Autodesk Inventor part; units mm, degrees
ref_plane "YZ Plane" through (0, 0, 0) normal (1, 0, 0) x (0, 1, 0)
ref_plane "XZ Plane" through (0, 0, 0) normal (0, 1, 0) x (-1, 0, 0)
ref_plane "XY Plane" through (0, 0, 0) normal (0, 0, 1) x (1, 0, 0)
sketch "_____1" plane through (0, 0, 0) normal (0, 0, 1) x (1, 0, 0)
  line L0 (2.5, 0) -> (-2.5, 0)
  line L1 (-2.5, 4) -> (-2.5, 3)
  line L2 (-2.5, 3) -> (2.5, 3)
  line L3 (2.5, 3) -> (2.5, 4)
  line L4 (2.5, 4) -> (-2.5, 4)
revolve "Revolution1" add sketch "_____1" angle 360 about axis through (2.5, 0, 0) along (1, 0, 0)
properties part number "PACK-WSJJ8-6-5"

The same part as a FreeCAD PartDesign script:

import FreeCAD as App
import Part
import Sketcher


def add_polygon(sketch, points):
    """Adds a closed chain of lines whose ends are joined by coincident constraints."""
    first, n = sketch.GeometryCount, len(points)
    for a, b in zip(points, points[1:] + points[:1]):
        sketch.addGeometry(Part.LineSegment(App.Vector(*a, 0), App.Vector(*b, 0)), False)
    for i in range(n):
        sketch.addConstraint(Sketcher.Constraint("Coincident", first + i, 2, first + (i + 1) % n, 1))

doc = App.newDocument("Part")
params = doc.addObject("Spreadsheet::Sheet", "Params")
for row, (alias, value) in enumerate([
    ("sketch1_width", "5 mm"),
    ("sketch1_height", "1 mm"),
    ("revolution_angle", "360 deg"),
], start=1):
    params.set(f"A{row}", alias)
    params.set(f"B{row}", "=" + value)
    params.setAlias(f"B{row}", alias)

body = doc.addObject("PartDesign::Body", "Body")

sketch1 = doc.addObject("Sketcher::SketchObject", "Sketch")
body.addObject(sketch1)
sketch1.AttachmentSupport = (doc.XY_Plane, [""])
sketch1.MapMode = "FlatFace"
add_polygon(sketch1, [(2.5, 4), (-2.5, 4), (-2.5, 3), (2.5, 3)])
sketch1.addConstraint([
    Sketcher.Constraint("Horizontal", 0),
    Sketcher.Constraint("Vertical", 1),
    Sketcher.Constraint("Horizontal", 2),
    Sketcher.Constraint("Vertical", 3),
    Sketcher.Constraint("DistanceX", 0, 2, 0, 1, 5.0),
    Sketcher.Constraint("DistanceY", 1, 2, 1, 1, 1.0),
    Sketcher.Constraint("DistanceY", -1, 1, 0, 2, 4.0),
    Sketcher.Constraint("DistanceX", 0, 2, -1, 1, 2.5),
])
sketch1.setExpression("Constraints[8]", "Params.sketch1_width")
sketch1.setExpression("Constraints[9]", "Params.sketch1_height")
revolution = doc.addObject("PartDesign::Revolution", "Revolution")
body.addObject(revolution)
revolution.Profile = sketch1
revolution.ReferenceAxis = (sketch1, ["H_Axis"])
revolution.setExpression("Angle", "Params.revolution_angle")

doc.recompute()
